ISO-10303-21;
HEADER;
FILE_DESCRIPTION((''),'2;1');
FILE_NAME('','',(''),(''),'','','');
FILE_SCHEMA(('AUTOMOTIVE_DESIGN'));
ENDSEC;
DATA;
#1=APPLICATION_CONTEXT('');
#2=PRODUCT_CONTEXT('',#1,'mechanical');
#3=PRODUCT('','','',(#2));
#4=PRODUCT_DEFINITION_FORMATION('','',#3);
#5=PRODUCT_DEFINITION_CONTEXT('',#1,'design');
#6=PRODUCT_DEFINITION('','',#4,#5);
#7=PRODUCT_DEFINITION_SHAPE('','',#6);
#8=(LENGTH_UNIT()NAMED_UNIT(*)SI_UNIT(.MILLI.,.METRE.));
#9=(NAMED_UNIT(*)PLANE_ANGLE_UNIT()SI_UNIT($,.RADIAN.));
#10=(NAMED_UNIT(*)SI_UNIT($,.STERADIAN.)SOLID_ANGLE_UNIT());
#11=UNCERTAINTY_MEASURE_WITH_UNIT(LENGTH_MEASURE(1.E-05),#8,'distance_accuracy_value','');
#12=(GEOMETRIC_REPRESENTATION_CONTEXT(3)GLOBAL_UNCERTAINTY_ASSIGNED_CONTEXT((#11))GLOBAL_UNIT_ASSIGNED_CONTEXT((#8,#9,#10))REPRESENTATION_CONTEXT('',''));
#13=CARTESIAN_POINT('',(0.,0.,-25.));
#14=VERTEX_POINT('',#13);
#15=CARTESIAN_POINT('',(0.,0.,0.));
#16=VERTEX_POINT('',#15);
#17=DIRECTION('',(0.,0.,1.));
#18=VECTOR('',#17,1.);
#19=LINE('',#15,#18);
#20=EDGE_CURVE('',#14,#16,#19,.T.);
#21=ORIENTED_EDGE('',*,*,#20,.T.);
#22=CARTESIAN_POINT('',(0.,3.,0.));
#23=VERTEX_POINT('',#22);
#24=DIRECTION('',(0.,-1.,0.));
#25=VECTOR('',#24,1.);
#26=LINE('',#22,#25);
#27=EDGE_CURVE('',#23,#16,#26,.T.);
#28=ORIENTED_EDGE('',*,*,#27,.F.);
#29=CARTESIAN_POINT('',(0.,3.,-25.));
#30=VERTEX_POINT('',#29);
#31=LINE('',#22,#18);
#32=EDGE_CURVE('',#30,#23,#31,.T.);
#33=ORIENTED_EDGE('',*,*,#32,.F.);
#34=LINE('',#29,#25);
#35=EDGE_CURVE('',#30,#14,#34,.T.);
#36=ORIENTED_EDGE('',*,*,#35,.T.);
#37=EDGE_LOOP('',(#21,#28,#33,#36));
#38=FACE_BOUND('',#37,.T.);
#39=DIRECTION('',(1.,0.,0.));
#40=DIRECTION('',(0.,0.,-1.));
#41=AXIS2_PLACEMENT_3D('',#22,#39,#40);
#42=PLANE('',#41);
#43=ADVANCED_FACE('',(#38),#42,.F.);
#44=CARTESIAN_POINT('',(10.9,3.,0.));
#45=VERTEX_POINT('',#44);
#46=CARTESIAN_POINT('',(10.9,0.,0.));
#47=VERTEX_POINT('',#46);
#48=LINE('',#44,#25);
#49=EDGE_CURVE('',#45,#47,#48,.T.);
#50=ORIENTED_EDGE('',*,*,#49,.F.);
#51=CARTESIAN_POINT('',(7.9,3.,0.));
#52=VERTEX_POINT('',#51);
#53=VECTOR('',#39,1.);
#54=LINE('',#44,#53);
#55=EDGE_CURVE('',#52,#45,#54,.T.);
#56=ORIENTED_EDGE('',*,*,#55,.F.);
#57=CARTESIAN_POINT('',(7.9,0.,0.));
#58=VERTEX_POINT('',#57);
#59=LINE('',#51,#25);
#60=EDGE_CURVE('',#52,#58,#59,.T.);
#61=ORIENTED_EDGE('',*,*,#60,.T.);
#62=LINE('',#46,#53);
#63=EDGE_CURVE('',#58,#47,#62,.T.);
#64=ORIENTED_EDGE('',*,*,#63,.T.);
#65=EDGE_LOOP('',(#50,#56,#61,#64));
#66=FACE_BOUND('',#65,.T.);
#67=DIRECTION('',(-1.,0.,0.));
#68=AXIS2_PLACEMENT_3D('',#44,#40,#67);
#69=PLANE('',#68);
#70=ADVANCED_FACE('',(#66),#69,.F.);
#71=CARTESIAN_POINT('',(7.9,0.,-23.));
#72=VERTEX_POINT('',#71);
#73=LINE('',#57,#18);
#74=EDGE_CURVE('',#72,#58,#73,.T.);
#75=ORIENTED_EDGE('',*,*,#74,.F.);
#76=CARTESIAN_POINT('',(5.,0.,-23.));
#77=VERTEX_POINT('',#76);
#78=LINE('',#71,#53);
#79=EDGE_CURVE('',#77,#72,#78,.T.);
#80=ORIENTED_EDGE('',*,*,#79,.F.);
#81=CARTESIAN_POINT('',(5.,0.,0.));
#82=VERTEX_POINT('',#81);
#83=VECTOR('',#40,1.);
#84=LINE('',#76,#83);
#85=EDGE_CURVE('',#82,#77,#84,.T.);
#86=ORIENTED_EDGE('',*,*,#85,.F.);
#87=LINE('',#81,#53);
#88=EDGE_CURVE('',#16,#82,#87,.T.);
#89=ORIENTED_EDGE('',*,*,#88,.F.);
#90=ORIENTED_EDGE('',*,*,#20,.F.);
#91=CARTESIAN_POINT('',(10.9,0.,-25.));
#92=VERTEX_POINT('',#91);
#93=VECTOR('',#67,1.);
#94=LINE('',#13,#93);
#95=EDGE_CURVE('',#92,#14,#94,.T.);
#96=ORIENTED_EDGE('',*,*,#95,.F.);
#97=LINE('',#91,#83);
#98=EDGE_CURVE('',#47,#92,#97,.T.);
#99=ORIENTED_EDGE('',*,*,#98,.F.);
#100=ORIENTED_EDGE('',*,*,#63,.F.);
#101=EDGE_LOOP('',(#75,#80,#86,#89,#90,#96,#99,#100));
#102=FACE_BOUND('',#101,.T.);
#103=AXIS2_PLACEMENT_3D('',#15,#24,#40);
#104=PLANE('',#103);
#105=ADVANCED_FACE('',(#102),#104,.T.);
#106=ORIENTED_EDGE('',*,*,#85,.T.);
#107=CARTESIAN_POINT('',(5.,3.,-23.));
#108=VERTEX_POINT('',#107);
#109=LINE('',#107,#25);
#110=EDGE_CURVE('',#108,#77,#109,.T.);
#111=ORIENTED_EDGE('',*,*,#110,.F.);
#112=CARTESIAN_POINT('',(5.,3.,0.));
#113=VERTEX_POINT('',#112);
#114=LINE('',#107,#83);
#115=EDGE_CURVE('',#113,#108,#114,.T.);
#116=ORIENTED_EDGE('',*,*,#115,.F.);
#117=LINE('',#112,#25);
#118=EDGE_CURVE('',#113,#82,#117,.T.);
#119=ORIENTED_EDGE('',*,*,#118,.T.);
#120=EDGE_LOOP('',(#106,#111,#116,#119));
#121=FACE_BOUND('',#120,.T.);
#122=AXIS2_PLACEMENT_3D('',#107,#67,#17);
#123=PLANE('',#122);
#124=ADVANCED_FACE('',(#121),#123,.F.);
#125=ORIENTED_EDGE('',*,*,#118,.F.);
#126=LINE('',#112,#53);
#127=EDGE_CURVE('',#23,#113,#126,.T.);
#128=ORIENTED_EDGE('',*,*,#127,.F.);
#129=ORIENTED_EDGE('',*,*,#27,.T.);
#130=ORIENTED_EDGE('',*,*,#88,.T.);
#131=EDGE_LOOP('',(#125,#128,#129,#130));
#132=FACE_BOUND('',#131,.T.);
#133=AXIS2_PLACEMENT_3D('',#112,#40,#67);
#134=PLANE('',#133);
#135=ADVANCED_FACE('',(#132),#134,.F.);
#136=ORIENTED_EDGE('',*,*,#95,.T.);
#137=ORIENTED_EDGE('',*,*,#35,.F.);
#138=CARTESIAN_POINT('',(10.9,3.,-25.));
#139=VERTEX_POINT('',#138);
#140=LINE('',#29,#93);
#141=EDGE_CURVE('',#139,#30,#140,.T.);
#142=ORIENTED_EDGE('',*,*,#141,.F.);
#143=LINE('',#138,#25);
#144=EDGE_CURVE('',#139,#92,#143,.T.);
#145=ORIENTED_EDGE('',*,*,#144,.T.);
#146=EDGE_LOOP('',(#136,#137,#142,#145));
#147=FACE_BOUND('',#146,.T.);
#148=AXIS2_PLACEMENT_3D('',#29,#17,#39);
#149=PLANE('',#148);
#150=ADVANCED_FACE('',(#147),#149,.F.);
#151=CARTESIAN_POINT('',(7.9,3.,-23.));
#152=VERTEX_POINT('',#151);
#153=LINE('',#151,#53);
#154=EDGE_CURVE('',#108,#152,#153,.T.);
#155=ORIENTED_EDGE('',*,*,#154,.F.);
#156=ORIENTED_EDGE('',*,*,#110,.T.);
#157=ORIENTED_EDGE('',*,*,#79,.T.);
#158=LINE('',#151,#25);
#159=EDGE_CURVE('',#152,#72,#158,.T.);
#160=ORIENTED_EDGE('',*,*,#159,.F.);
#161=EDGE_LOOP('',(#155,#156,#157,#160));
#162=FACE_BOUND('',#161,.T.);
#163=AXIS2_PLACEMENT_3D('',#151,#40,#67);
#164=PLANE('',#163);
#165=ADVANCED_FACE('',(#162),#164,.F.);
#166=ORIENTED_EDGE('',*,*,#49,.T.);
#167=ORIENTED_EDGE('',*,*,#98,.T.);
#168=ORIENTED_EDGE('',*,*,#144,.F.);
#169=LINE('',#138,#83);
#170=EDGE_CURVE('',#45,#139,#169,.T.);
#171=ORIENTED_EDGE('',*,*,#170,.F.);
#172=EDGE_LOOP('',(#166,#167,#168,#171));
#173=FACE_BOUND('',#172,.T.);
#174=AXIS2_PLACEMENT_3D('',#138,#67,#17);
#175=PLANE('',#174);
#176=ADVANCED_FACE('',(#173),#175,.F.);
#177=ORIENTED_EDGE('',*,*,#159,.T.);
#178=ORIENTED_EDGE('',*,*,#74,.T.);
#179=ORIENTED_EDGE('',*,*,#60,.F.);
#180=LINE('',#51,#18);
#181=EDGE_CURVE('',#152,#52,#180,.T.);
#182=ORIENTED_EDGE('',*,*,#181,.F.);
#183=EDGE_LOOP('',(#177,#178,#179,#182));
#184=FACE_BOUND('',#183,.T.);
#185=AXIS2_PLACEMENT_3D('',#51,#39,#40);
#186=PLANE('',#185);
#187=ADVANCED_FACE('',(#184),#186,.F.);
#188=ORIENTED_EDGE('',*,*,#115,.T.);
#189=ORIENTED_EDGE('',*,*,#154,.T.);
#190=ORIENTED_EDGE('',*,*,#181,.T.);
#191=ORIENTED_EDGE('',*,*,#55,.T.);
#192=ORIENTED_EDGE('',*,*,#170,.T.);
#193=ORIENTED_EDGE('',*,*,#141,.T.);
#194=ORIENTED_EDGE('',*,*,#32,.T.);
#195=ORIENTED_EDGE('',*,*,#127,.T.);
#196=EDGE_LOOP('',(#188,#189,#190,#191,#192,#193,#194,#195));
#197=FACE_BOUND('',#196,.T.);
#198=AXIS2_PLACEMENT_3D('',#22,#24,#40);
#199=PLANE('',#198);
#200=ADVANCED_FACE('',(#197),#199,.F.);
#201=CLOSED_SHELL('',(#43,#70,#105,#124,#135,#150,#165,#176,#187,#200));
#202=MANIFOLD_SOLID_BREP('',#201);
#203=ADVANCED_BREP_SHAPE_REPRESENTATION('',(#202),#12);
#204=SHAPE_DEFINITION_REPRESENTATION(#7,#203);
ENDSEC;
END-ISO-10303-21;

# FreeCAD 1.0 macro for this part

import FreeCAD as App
import Part
import Sketcher
from FreeCAD import Vector
Q = App.Units.Quantity

doc = App.newDocument("Part")
params = doc.addObject("Spreadsheet::Sheet", "Params")
for row, (alias, value) in enumerate([
    ("sketch1_width", "5 mm"),
    ("sketch1_width2", "3 mm"),
    ("sketch1_height", "25 mm"),
    ("sketch1_height2", "23 mm"),
    ("sketch1_width3", "2.9 mm"),
    ("pad1_length", "3 mm"),
], start=1):
    params.set(f"A{row}", alias)
    params.set(f"B{row}", "=" + value)
    params.setAlias(f"B{row}", alias)

body = doc.addObject("PartDesign::Body", "Body")

# Sketch on XZ plane
sketch1 = doc.addObject("Sketcher::SketchObject", "Sketch")
body.addObject(sketch1)
sketch1.AttachmentSupport = (doc.XZ_Plane, [""])
sketch1.MapMode = "FlatFace"
sketch1.addGeometry(Part.LineSegment(Vector(0, -25, 0), Vector(0, 0, 0)), False)
sketch1.addGeometry(Part.LineSegment(Vector(0, 0, 0), Vector(5, 0, 0)), False)
sketch1.addGeometry(Part.LineSegment(Vector(5, 0, 0), Vector(5, -23, 0)), False)
sketch1.addGeometry(Part.LineSegment(Vector(5, -23, 0), Vector(7.9, -23, 0)), False)
sketch1.addGeometry(Part.LineSegment(Vector(7.9, -23, 0), Vector(7.9, 0, 0)), False)
sketch1.addGeometry(Part.LineSegment(Vector(7.9, 0, 0), Vector(10.9, 0, 0)), False)
sketch1.addGeometry(Part.LineSegment(Vector(10.9, 0, 0), Vector(10.9, -25, 0)), False)
sketch1.addGeometry(Part.LineSegment(Vector(10.9, -25, 0), Vector(0, -25, 0)), False)
sketch1.addConstraint(Sketcher.Constraint("Coincident", 0, 2, 1, 1))
sketch1.addConstraint(Sketcher.Constraint("Coincident", 1, 2, 2, 1))
sketch1.addConstraint(Sketcher.Constraint("Coincident", 2, 2, 3, 1))
sketch1.addConstraint(Sketcher.Constraint("Coincident", 3, 2, 4, 1))
sketch1.addConstraint(Sketcher.Constraint("Coincident", 4, 2, 5, 1))
sketch1.addConstraint(Sketcher.Constraint("Coincident", 5, 2, 6, 1))
sketch1.addConstraint(Sketcher.Constraint("Coincident", 6, 2, 7, 1))
sketch1.addConstraint(Sketcher.Constraint("Coincident", 7, 2, 0, 1))
sketch1.addConstraint(Sketcher.Constraint("Vertical", 0))
sketch1.addConstraint(Sketcher.Constraint("Horizontal", 1))
sketch1.addConstraint(Sketcher.Constraint("Vertical", 2))
sketch1.addConstraint(Sketcher.Constraint("Horizontal", 3))
sketch1.addConstraint(Sketcher.Constraint("Vertical", 4))
sketch1.addConstraint(Sketcher.Constraint("Horizontal", 5))
sketch1.addConstraint(Sketcher.Constraint("Vertical", 6))
sketch1.addConstraint(Sketcher.Constraint("Horizontal", 7))
sketch1.addConstraint(Sketcher.Constraint("Coincident", 0, 2, -1, 1))
sketch1.addConstraint(Sketcher.Constraint("PointOnObject", 4, 2, -1))
sketch1.addConstraint(Sketcher.Constraint("DistanceX", 1, 1, 1, 2, Q("5 mm")))
sketch1.addConstraint(Sketcher.Constraint("DistanceX", 5, 1, 5, 2, Q("3 mm")))
sketch1.addConstraint(Sketcher.Constraint("DistanceY", 0, 1, 0, 2, Q("25 mm")))
sketch1.addConstraint(Sketcher.Constraint("DistanceY", 2, 2, 2, 1, Q("23 mm")))
sketch1.addConstraint(Sketcher.Constraint("DistanceX", 3, 1, 3, 2, Q("2.9 mm")))
sketch1.setExpression("Constraints[18]", "Params.sketch1_width")
sketch1.setExpression("Constraints[19]", "Params.sketch1_width2")
sketch1.setExpression("Constraints[20]", "Params.sketch1_height")
sketch1.setExpression("Constraints[21]", "Params.sketch1_height2")
sketch1.setExpression("Constraints[22]", "Params.sketch1_width3")
pad1 = doc.addObject("PartDesign::Pad", "Pad")
body.addObject(pad1)
pad1.Profile = sketch1
pad1.setExpression("Length", "Params.pad1_length")
pad1.Reversed = True

doc.recompute()
